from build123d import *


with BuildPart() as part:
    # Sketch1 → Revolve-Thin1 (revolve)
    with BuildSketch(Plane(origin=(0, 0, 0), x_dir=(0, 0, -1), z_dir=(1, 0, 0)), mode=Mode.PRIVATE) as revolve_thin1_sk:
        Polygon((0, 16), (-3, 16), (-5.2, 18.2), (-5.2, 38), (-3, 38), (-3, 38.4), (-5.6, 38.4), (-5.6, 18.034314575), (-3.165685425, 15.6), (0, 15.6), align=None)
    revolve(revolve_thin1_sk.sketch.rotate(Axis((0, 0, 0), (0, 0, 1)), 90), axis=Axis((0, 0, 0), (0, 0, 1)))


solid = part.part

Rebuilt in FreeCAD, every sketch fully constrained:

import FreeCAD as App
import Part
import Sketcher
from FreeCAD import Vector
Q = App.Units.Quantity

doc = App.newDocument("Part")
body = doc.addObject("PartDesign::Body", "Body")

# Sketch on YZ plane
sketch1 = doc.addObject("Sketcher::SketchObject", "Sketch")
body.addObject(sketch1)
sketch1.AttachmentSupport = (doc.YZ_Plane, [""])
sketch1.MapMode = "FlatFace"
sketch1.addGeometry([
    Part.LineSegment(Vector(16, 0, 0), Vector(16, 3, 0)),  # 0
    Part.LineSegment(Vector(16, 3, 0), Vector(18.2, 5.2, 0)),  # 1
    Part.LineSegment(Vector(18.2, 5.2, 0), Vector(38, 5.2, 0)),  # 2
    Part.LineSegment(Vector(38, 5.2, 0), Vector(38, 3, 0)),  # 3
    Part.LineSegment(Vector(38, 3, 0), Vector(38.4, 3, 0)),  # 4
    Part.LineSegment(Vector(38.4, 3, 0), Vector(38.4, 5.6, 0)),  # 5
    Part.LineSegment(Vector(38.4, 5.6, 0), Vector(18.034315, 5.6, 0)),  # 6
    Part.LineSegment(Vector(18.034315, 5.6, 0), Vector(15.6, 3.165685, 0)),  # 7
    Part.LineSegment(Vector(15.6, 3.165685, 0), Vector(15.6, 0, 0)),  # 8
    Part.LineSegment(Vector(15.6, 0, 0), Vector(16, 0, 0)),  # 9
], False)
sketch1.addConstraint([
    Sketcher.Constraint("Coincident", 0, 2, 1, 1),
    Sketcher.Constraint("Coincident", 1, 2, 2, 1),
    Sketcher.Constraint("Coincident", 2, 2, 3, 1),
    Sketcher.Constraint("Coincident", 3, 2, 4, 1),
    Sketcher.Constraint("Coincident", 4, 2, 5, 1),
    Sketcher.Constraint("Coincident", 5, 2, 6, 1),
    Sketcher.Constraint("Coincident", 6, 2, 7, 1),
    Sketcher.Constraint("Coincident", 7, 2, 8, 1),
    Sketcher.Constraint("Coincident", 8, 2, 9, 1),
    Sketcher.Constraint("Coincident", 9, 2, 0, 1),
    Sketcher.Constraint("Vertical", 0),
    Sketcher.Constraint("Horizontal", 2),
    Sketcher.Constraint("Vertical", 3),
    Sketcher.Constraint("Horizontal", 4),
    Sketcher.Constraint("Vertical", 5),
    Sketcher.Constraint("Horizontal", 6),
    Sketcher.Constraint("Vertical", 8),
    Sketcher.Constraint("Horizontal", 9),
    Sketcher.Constraint("PointOnObject", 8, 2, -1),
    Sketcher.Constraint("Parallel", 1, 7),
    Sketcher.Constraint("Horizontal", 0, 2, 3, 2),
    Sketcher.Constraint("Equal", 4, 9),
    Sketcher.Constraint("DistanceY", 0, 1, 0, 2, Q("3 mm")),
    Sketcher.Constraint("Angle", 1, Q("45 deg")),
    Sketcher.Constraint("DistanceX", 2, 1, 2, 2, Q("19.8 mm")),
    Sketcher.Constraint("DistanceX", 4, 1, 4, 2, Q("0.4 mm")),
    Sketcher.Constraint("DistanceY", 3, 2, 3, 1, Q("2.2 mm")),
    Sketcher.Constraint("DistanceY", 5, 1, 5, 2, Q("2.6 mm")),
    Sketcher.Constraint("DistanceX", -1, 1, 0, 2, Q("16 mm")),
    Sketcher.Constraint("Distance", 7, Q("3.442641 mm")),
])
revolution = doc.addObject("PartDesign::Revolution", "Revolution")
body.addObject(revolution)
revolution.Profile = sketch1
revolution.ReferenceAxis = (sketch1, ["V_Axis"])
revolution.Angle = 360

doc.recompute()
